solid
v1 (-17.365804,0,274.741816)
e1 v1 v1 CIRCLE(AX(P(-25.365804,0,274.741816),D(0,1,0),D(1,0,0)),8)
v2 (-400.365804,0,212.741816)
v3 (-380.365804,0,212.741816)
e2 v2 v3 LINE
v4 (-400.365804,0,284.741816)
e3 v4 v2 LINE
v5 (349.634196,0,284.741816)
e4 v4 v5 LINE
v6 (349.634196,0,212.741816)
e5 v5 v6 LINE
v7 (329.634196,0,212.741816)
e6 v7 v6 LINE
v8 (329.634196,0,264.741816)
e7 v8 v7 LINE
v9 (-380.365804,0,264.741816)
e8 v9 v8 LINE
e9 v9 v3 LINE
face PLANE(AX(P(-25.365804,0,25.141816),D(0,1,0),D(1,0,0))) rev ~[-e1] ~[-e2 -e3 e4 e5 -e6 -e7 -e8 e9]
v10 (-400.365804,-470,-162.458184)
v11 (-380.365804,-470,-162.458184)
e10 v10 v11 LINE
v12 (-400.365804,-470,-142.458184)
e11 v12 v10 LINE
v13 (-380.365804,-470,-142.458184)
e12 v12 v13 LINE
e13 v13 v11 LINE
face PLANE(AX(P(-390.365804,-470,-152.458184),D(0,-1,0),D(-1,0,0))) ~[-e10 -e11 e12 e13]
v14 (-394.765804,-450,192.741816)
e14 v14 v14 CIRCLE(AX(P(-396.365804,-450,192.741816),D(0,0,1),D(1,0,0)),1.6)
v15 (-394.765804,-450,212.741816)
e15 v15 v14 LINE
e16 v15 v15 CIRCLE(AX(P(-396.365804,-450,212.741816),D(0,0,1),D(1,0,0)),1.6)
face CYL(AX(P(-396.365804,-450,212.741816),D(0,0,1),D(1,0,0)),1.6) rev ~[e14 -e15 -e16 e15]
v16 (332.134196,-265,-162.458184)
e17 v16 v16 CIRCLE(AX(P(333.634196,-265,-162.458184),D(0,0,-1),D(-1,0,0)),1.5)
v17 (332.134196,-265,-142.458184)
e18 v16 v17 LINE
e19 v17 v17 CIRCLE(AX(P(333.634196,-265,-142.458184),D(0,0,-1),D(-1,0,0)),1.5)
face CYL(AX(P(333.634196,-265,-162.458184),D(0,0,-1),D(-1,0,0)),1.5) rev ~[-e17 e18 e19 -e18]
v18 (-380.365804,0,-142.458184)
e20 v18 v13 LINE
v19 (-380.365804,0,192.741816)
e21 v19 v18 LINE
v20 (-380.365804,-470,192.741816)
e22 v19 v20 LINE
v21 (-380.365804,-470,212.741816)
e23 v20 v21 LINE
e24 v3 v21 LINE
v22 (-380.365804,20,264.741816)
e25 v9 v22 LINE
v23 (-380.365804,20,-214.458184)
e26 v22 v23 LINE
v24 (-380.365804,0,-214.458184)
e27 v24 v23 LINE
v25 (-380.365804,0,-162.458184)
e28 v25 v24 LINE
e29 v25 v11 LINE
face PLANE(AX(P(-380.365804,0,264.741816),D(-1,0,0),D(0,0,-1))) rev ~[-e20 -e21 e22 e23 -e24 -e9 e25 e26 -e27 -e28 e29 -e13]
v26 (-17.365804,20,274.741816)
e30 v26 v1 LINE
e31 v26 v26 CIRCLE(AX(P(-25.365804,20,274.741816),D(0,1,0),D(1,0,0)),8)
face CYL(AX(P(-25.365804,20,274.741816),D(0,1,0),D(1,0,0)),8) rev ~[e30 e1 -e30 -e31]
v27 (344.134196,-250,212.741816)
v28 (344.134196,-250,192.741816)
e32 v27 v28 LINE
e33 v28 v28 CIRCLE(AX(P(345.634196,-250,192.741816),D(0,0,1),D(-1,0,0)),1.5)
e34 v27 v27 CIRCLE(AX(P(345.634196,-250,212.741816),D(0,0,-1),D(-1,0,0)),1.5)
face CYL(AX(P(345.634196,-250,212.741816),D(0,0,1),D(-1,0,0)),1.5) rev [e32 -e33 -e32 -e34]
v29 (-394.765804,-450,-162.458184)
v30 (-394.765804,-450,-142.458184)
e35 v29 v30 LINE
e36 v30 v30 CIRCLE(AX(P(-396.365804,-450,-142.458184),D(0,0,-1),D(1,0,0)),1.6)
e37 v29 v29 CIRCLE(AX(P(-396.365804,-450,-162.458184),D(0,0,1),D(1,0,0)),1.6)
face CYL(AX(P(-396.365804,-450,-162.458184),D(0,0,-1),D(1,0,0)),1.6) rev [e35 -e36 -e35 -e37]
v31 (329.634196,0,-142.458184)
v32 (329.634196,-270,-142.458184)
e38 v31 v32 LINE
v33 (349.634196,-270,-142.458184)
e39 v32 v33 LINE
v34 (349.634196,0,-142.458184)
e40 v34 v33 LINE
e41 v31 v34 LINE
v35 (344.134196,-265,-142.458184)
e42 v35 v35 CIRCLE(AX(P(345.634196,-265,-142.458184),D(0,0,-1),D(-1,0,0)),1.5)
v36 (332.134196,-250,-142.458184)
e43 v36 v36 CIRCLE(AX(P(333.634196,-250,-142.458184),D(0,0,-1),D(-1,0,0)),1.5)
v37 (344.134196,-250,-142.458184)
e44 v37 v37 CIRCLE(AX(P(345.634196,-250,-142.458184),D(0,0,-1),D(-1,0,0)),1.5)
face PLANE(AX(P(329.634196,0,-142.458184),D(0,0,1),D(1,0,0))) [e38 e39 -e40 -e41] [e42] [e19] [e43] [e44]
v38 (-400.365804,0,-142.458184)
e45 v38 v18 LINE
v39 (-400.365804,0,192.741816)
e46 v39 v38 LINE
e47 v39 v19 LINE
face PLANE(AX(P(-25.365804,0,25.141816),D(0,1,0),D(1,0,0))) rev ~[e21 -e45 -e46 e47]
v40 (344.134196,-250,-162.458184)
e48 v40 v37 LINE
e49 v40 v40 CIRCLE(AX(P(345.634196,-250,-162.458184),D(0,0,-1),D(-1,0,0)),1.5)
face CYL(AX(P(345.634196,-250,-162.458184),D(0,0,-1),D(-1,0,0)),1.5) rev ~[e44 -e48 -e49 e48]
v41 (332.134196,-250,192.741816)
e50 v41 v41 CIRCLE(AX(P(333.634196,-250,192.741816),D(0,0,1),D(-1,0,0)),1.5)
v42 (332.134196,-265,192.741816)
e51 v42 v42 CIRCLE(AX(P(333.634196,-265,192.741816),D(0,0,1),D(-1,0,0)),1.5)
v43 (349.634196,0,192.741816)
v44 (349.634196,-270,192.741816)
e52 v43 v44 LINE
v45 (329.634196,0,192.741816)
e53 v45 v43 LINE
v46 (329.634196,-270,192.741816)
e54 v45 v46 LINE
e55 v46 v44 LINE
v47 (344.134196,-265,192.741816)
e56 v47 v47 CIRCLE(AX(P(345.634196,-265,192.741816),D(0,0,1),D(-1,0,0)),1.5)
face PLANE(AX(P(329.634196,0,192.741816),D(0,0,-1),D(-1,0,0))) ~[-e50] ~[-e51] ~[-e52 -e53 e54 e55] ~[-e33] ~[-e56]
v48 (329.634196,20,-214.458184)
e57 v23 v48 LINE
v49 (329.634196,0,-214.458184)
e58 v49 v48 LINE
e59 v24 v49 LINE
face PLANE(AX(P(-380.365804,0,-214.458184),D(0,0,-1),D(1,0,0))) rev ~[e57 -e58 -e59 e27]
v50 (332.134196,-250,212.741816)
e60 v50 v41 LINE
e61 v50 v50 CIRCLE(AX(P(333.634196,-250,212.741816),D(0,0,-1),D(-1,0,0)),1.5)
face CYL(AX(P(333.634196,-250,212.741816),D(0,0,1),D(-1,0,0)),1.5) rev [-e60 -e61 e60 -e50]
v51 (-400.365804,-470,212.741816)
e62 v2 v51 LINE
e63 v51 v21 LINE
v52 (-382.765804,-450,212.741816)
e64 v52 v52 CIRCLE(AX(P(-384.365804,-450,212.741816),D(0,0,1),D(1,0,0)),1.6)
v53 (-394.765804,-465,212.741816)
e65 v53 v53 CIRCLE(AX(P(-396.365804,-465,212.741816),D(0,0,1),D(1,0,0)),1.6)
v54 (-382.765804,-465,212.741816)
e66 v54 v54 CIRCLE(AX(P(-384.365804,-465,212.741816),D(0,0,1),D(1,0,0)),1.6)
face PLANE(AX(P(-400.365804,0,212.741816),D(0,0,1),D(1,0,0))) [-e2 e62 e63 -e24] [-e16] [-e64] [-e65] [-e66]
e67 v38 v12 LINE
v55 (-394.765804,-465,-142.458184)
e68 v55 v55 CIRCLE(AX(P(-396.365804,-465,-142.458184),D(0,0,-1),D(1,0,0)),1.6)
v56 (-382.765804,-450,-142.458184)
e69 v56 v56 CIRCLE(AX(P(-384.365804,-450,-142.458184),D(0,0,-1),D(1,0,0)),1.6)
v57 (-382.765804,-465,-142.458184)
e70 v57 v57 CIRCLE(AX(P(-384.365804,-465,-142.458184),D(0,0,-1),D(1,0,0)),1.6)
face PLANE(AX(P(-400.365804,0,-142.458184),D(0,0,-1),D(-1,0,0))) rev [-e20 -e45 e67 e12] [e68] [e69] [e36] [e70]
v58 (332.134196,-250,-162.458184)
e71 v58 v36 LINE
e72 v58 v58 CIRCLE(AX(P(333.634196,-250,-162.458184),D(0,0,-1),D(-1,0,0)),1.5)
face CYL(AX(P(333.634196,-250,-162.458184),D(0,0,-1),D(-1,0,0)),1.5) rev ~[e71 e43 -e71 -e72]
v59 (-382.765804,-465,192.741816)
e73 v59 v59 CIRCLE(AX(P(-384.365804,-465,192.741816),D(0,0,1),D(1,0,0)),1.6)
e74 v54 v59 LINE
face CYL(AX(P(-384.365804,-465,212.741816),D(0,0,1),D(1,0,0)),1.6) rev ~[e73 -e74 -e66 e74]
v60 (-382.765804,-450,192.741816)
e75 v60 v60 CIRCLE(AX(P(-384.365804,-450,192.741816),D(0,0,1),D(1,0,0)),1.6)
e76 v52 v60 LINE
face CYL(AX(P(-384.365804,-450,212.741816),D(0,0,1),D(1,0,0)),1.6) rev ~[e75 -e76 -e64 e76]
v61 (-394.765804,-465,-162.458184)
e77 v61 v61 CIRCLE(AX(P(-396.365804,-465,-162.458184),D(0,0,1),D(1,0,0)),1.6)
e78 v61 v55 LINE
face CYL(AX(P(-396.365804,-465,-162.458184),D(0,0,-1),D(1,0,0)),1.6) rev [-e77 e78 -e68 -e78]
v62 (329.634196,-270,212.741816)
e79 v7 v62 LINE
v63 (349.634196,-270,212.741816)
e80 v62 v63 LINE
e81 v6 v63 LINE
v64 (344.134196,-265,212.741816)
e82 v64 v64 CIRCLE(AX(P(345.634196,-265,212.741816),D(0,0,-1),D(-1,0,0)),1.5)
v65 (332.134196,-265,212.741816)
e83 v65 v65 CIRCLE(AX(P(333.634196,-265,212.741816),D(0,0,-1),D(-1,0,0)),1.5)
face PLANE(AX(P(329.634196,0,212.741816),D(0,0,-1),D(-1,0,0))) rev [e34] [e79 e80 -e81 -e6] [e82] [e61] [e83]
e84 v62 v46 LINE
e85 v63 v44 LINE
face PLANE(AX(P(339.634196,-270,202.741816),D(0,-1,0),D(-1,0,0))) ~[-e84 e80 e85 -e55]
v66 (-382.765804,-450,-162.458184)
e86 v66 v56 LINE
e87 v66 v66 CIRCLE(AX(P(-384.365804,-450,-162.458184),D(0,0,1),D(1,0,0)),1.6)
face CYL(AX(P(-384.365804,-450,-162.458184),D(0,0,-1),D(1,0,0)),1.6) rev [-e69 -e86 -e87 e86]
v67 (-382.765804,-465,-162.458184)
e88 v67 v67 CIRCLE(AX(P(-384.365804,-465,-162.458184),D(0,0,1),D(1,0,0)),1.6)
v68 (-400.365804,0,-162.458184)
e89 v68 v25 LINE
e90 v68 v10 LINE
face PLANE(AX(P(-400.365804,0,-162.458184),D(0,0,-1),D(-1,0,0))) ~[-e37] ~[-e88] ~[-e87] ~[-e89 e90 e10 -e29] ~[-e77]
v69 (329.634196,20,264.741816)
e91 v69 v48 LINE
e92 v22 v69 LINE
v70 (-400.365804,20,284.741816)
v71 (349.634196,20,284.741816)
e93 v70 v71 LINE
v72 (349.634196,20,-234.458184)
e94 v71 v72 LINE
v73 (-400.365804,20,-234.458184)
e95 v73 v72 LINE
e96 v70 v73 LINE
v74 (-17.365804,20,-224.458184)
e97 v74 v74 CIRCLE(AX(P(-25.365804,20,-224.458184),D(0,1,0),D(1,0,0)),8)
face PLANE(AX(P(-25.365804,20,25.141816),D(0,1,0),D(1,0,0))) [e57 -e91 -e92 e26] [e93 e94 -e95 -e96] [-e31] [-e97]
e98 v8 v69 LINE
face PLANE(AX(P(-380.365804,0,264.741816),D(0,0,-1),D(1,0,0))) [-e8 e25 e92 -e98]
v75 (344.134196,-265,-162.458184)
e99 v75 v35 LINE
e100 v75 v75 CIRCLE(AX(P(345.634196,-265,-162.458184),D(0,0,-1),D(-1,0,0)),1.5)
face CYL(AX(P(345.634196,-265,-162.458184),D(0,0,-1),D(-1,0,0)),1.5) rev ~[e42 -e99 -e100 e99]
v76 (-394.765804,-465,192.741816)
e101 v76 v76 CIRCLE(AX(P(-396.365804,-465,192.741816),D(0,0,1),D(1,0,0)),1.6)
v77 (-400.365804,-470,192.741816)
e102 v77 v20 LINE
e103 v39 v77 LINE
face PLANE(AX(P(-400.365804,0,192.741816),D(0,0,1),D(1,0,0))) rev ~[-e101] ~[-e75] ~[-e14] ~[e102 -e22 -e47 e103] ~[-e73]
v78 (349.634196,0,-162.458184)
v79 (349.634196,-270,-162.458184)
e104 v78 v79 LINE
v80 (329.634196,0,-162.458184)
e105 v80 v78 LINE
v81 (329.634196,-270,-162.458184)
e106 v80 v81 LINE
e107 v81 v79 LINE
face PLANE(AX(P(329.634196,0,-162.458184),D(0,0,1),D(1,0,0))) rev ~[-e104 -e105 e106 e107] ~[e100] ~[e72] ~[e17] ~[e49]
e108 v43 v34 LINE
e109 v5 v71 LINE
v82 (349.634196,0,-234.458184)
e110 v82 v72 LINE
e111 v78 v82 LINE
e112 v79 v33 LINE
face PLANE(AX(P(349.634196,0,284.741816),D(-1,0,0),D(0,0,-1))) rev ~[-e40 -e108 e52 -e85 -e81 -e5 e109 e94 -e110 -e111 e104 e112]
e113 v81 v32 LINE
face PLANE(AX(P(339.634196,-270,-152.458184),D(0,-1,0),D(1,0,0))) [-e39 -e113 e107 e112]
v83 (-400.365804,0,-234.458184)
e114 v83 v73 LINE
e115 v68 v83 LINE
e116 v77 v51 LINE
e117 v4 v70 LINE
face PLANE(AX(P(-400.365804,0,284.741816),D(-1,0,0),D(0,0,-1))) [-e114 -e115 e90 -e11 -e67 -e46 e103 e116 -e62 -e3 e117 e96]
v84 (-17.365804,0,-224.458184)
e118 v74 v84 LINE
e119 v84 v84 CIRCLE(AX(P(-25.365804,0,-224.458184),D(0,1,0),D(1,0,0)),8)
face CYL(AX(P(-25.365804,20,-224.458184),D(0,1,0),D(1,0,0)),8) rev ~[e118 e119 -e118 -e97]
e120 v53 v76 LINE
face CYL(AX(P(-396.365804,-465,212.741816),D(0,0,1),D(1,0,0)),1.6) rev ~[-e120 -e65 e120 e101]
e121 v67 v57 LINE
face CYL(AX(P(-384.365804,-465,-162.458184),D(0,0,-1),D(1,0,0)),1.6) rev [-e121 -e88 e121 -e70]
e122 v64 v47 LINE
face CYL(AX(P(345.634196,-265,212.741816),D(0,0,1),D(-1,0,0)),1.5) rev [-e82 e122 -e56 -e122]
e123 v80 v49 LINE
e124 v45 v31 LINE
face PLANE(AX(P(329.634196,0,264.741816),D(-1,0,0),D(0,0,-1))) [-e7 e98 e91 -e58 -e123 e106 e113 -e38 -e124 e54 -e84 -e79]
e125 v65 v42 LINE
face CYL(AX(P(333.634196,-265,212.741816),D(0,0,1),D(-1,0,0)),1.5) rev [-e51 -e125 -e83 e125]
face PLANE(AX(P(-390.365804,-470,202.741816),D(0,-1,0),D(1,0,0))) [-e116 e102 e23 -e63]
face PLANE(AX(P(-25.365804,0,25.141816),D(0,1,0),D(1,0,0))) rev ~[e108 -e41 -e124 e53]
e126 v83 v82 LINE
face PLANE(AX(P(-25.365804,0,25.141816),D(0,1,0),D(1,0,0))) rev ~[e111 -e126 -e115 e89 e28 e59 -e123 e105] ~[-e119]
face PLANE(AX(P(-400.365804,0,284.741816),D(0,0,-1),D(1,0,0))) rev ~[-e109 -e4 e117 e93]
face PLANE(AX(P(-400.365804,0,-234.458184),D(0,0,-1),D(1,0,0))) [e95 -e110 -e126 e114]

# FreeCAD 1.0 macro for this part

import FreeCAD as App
import Part
import Sketcher
Q = App.Units.Quantity

doc = App.newDocument("Part")
body = doc.addObject("PartDesign::Body", "Body")

# Sketch on XZ plane
sketch1 = doc.addObject("Sketcher::SketchObject", "Sketch")
body.addObject(sketch1)
sketch1.AttachmentSupport = (doc.XZ_Plane, [""])
sketch1.MapMode = "FlatFace"
sketch1.addGeometry([
    Part.LineSegment(App.Vector(-400.365804, -234.458184, 0), App.Vector(-400.365804, 284.741816, 0)),  # 0
    Part.LineSegment(App.Vector(-400.365804, 284.741816, 0), App.Vector(349.634196, 284.741816, 0)),  # 1
    Part.LineSegment(App.Vector(349.634196, 284.741816, 0), App.Vector(349.634196, -234.458184, 0)),  # 2
    Part.LineSegment(App.Vector(349.634196, -234.458184, 0), App.Vector(-400.365804, -234.458184, 0)),  # 3
    Part.LineSegment(App.Vector(329.634196, 264.741816, 0), App.Vector(-380.365804, 264.741816, 0)),  # 4
    Part.LineSegment(App.Vector(-380.365804, 264.741816, 0), App.Vector(-380.365804, -214.458184, 0)),  # 5
    Part.LineSegment(App.Vector(-380.365804, -214.458184, 0), App.Vector(329.634196, -214.458184, 0)),  # 6
    Part.LineSegment(App.Vector(329.634196, -214.458184, 0), App.Vector(329.634196, 264.741816, 0)),  # 7
], False)
sketch1.addConstraint([
    Sketcher.Constraint("Coincident", 0, 2, 1, 1),
    Sketcher.Constraint("Coincident", 1, 2, 2, 1),
    Sketcher.Constraint("Coincident", 2, 2, 3, 1),
    Sketcher.Constraint("Coincident", 3, 2, 0, 1),
    Sketcher.Constraint("Coincident", 4, 2, 5, 1),
    Sketcher.Constraint("Coincident", 5, 2, 6, 1),
    Sketcher.Constraint("Coincident", 6, 2, 7, 1),
    Sketcher.Constraint("Coincident", 7, 2, 4, 1),
    Sketcher.Constraint("Vertical", 0),
    Sketcher.Constraint("Horizontal", 1),
    Sketcher.Constraint("Vertical", 2),
    Sketcher.Constraint("Horizontal", 3),
    Sketcher.Constraint("Horizontal", 4),
    Sketcher.Constraint("Vertical", 5),
    Sketcher.Constraint("Horizontal", 6),
    Sketcher.Constraint("Vertical", 7),
    Sketcher.Constraint("DistanceX", 1, 1, 1, 2, Q("750 mm")),
    Sketcher.Constraint("DistanceX", 4, 2, 4, 1, Q("710 mm")),
    Sketcher.Constraint("DistanceY", 0, 1, 0, 2, Q("519.2 mm")),
    Sketcher.Constraint("DistanceY", 5, 2, 5, 1, Q("479.2 mm")),
    Sketcher.Constraint("DistanceX", 0, 2, 4, 2, Q("20 mm")),
    Sketcher.Constraint("DistanceY", 4, 2, 0, 2, Q("20 mm")),
    Sketcher.Constraint("DistanceX", 0, 2, -1, 1, Q("400.365804 mm")),
    Sketcher.Constraint("DistanceY", -1, 1, 0, 2, Q("284.741816 mm")),
])
pad1 = doc.addObject("PartDesign::Pad", "Pad")
body.addObject(pad1)
pad1.Profile = sketch1
pad1.Length = 20
pad1.Reversed = True

# Sketch on XZ plane
sketch2 = doc.addObject("Sketcher::SketchObject", "Sketch001")
body.addObject(sketch2)
sketch2.AttachmentSupport = (doc.XZ_Plane, [""])
sketch2.MapMode = "FlatFace"
sketch2.addGeometry([
    Part.LineSegment(App.Vector(-400.365804, 212.741816, 0), App.Vector(-400.365804, 192.741816, 0)),
    Part.LineSegment(App.Vector(-400.365804, 192.741816, 0), App.Vector(-380.365804, 192.741816, 0)),
    Part.LineSegment(App.Vector(-380.365804, 192.741816, 0), App.Vector(-380.365804, 212.741816, 0)),
    Part.LineSegment(App.Vector(-380.365804, 212.741816, 0), App.Vector(-400.365804, 212.741816, 0)),
], False)
sketch2.addConstraint([
    Sketcher.Constraint("Coincident", 0, 2, 1, 1),
    Sketcher.Constraint("Coincident", 1, 2, 2, 1),
    Sketcher.Constraint("Coincident", 2, 2, 3, 1),
    Sketcher.Constraint("Coincident", 3, 2, 0, 1),
    Sketcher.Constraint("Vertical", 0),
    Sketcher.Constraint("Horizontal", 1),
    Sketcher.Constraint("Vertical", 2),
    Sketcher.Constraint("Horizontal", 3),
    Sketcher.Constraint("Equal", 3, 0),
    Sketcher.Constraint("DistanceX", 1, 1, 1, 2, Q("20 mm")),
    Sketcher.Constraint("DistanceX", 0, 2, -1, 1, Q("400.365804 mm")),
    Sketcher.Constraint("DistanceY", -1, 1, 0, 2, Q("192.741816 mm")),
])
pad2 = doc.addObject("PartDesign::Pad", "Pad001")
body.addObject(pad2)
pad2.Profile = sketch2
pad2.Length = 470

# Sketch on XZ plane
sketch3 = doc.addObject("Sketcher::SketchObject", "Sketch002")
body.addObject(sketch3)
sketch3.AttachmentSupport = (doc.XZ_Plane, [""])
sketch3.MapMode = "FlatFace"
sketch3.addGeometry([
    Part.LineSegment(App.Vector(329.634196, -142.458184, 0), App.Vector(329.634196, -162.458184, 0)),
    Part.LineSegment(App.Vector(329.634196, -162.458184, 0), App.Vector(349.634196, -162.458184, 0)),
    Part.LineSegment(App.Vector(349.634196, -162.458184, 0), App.Vector(349.634196, -142.458184, 0)),
    Part.LineSegment(App.Vector(349.634196, -142.458184, 0), App.Vector(329.634196, -142.458184, 0)),
], False)
sketch3.addConstraint([
    Sketcher.Constraint("Coincident", 0, 2, 1, 1),
    Sketcher.Constraint("Coincident", 1, 2, 2, 1),
    Sketcher.Constraint("Coincident", 2, 2, 3, 1),
    Sketcher.Constraint("Coincident", 3, 2, 0, 1),
    Sketcher.Constraint("Vertical", 0),
    Sketcher.Constraint("Horizontal", 1),
    Sketcher.Constraint("Vertical", 2),
    Sketcher.Constraint("Horizontal", 3),
    Sketcher.Constraint("Equal", 3, 0),
    Sketcher.Constraint("DistanceX", 1, 1, 1, 2, Q("20 mm")),
    Sketcher.Constraint("DistanceX", -1, 1, 0, 2, Q("329.634196 mm")),
    Sketcher.Constraint("DistanceY", 0, 2, -1, 1, Q("162.458184 mm")),
])
pad3 = doc.addObject("PartDesign::Pad", "Pad002")
body.addObject(pad3)
pad3.Profile = sketch3
pad3.Length = 270

# Sketch on XY plane
sketch4 = doc.addObject("Sketcher::SketchObject", "Sketch003")
body.addObject(sketch4)
sketch4.AttachmentSupport = (doc.XY_Plane, [""])
sketch4.MapMode = "FlatFace"
sketch4.AttachmentOffset = App.Placement(App.Vector(0, 0, 212.741816), App.Rotation())
sketch4.addGeometry([
    Part.Circle(App.Vector(-396.365804, -465, 0), App.Vector(0, 0, 1), 1.6),
    Part.Circle(App.Vector(-384.365804, -465, 0), App.Vector(0, 0, 1), 1.6),
    Part.Circle(App.Vector(-396.365804, -450, 0), App.Vector(0, 0, 1), 1.6),
    Part.Circle(App.Vector(-384.365804, -450, 0), App.Vector(0, 0, 1), 1.6),
], False)
sketch4.addConstraint([
    Sketcher.Constraint("Equal", 0, 1),
    Sketcher.Constraint("Equal", 1, 2),
    Sketcher.Constraint("Equal", 2, 3),
    Sketcher.Constraint("Horizontal", 0, 3, 1, 3),
    Sketcher.Constraint("Horizontal", 2, 3, 3, 3),
    Sketcher.Constraint("Vertical", 0, 3, 2, 3),
    Sketcher.Constraint("Vertical", 1, 3, 3, 3),
    Sketcher.Constraint("Diameter", 0, Q("3.2 mm")),
    Sketcher.Constraint("DistanceY", 0, 3, -1, 1, Q("465 mm")),
    Sketcher.Constraint("DistanceY", 2, 3, -1, 1, Q("450 mm")),
    Sketcher.Constraint("DistanceX", 0, 3, 1, 3, Q("12 mm")),
    Sketcher.Constraint("DistanceX", 0, 3, -1, 1, Q("396.365804 mm")),
])
pocket1 = doc.addObject("PartDesign::Pocket", "Pocket")
body.addObject(pocket1)
pocket1.Profile = sketch4
pocket1.Length = 30

# Sketch on XY plane
sketch5 = doc.addObject("Sketcher::SketchObject", "Sketch004")
body.addObject(sketch5)
sketch5.AttachmentSupport = (doc.XY_Plane, [""])
sketch5.MapMode = "FlatFace"
sketch5.AttachmentOffset = App.Placement(App.Vector(0, 0, -162.458184), App.Rotation())
sketch5.addGeometry([
    Part.Circle(App.Vector(345.634196, -265, 0), App.Vector(0, 0, 1), 1.5),
    Part.Circle(App.Vector(333.634196, -265, 0), App.Vector(0, 0, 1), 1.5),
    Part.Circle(App.Vector(345.634196, -250, 0), App.Vector(0, 0, 1), 1.5),
    Part.Circle(App.Vector(333.634196, -250, 0), App.Vector(0, 0, 1), 1.5),
], False)
sketch5.addConstraint([
    Sketcher.Constraint("Equal", 0, 1),
    Sketcher.Constraint("Equal", 1, 2),
    Sketcher.Constraint("Equal", 2, 3),
    Sketcher.Constraint("Horizontal", 0, 3, 1, 3),
    Sketcher.Constraint("Horizontal", 2, 3, 3, 3),
    Sketcher.Constraint("Vertical", 0, 3, 2, 3),
    Sketcher.Constraint("Vertical", 1, 3, 3, 3),
    Sketcher.Constraint("Diameter", 0, Q("3 mm")),
    Sketcher.Constraint("DistanceY", 0, 3, -1, 1, Q("265 mm")),
    Sketcher.Constraint("DistanceY", 2, 3, -1, 1, Q("250 mm")),
    Sketcher.Constraint("DistanceX", 1, 3, 0, 3, Q("12 mm")),
    Sketcher.Constraint("DistanceX", -1, 1, 0, 3, Q("345.634196 mm")),
])
pocket2 = doc.addObject("PartDesign::Pocket", "Pocket001")
body.addObject(pocket2)
pocket2.Profile = sketch5
pocket2.Length = 30
pocket2.Reversed = True
doc.recompute()

datumplane = doc.addObject("PartDesign::Plane", "DatumPlane")
body.addObject(datumplane)
datumplane.AttachmentSupport = (doc.XY_Plane, [""])
datumplane.MapMode = "FlatFace"
datumplane.AttachmentOffset = App.Placement(App.Vector(0, 0, 25.141816), App.Rotation())
mirrored = doc.addObject("PartDesign::Mirrored", "Mirrored")
body.addObject(mirrored)
mirrored.Originals = [pad2, pad3, pocket1, pocket2]
mirrored.MirrorPlane = (datumplane, [""])
body.Tip = mirrored

# Sketch on XZ plane
sketch6 = doc.addObject("Sketcher::SketchObject", "Sketch005")
body.addObject(sketch6)
sketch6.AttachmentSupport = (doc.XZ_Plane, [""])
sketch6.MapMode = "FlatFace"
sketch6.AttachmentOffset = App.Placement(App.Vector(0, 0, -20), App.Rotation())
sketch6.addGeometry([
    Part.Circle(App.Vector(-25.365804, -224.458184, 0), App.Vector(0, 0, 1), 8),
    Part.Circle(App.Vector(-25.365804, 274.741816, 0), App.Vector(0, 0, 1), 8),
], False)
sketch6.addConstraint([
    Sketcher.Constraint("Equal", 0, 1),
    Sketcher.Constraint("Vertical", 0, 3, 1, 3),
    Sketcher.Constraint("Diameter", 0, Q("16 mm")),
    Sketcher.Constraint("DistanceY", 0, 3, 1, 3, Q("499.2 mm")),
    Sketcher.Constraint("DistanceX", 0, 3, -1, 1, Q("25.365804 mm")),
    Sketcher.Constraint("DistanceY", 0, 3, -1, 1, Q("224.458184 mm")),
])
pocket3 = doc.addObject("PartDesign::Pocket", "Pocket002")
body.addObject(pocket3)
pocket3.Profile = sketch6
pocket3.Length = 20
pocket3.Reversed = True

doc.recompute()
